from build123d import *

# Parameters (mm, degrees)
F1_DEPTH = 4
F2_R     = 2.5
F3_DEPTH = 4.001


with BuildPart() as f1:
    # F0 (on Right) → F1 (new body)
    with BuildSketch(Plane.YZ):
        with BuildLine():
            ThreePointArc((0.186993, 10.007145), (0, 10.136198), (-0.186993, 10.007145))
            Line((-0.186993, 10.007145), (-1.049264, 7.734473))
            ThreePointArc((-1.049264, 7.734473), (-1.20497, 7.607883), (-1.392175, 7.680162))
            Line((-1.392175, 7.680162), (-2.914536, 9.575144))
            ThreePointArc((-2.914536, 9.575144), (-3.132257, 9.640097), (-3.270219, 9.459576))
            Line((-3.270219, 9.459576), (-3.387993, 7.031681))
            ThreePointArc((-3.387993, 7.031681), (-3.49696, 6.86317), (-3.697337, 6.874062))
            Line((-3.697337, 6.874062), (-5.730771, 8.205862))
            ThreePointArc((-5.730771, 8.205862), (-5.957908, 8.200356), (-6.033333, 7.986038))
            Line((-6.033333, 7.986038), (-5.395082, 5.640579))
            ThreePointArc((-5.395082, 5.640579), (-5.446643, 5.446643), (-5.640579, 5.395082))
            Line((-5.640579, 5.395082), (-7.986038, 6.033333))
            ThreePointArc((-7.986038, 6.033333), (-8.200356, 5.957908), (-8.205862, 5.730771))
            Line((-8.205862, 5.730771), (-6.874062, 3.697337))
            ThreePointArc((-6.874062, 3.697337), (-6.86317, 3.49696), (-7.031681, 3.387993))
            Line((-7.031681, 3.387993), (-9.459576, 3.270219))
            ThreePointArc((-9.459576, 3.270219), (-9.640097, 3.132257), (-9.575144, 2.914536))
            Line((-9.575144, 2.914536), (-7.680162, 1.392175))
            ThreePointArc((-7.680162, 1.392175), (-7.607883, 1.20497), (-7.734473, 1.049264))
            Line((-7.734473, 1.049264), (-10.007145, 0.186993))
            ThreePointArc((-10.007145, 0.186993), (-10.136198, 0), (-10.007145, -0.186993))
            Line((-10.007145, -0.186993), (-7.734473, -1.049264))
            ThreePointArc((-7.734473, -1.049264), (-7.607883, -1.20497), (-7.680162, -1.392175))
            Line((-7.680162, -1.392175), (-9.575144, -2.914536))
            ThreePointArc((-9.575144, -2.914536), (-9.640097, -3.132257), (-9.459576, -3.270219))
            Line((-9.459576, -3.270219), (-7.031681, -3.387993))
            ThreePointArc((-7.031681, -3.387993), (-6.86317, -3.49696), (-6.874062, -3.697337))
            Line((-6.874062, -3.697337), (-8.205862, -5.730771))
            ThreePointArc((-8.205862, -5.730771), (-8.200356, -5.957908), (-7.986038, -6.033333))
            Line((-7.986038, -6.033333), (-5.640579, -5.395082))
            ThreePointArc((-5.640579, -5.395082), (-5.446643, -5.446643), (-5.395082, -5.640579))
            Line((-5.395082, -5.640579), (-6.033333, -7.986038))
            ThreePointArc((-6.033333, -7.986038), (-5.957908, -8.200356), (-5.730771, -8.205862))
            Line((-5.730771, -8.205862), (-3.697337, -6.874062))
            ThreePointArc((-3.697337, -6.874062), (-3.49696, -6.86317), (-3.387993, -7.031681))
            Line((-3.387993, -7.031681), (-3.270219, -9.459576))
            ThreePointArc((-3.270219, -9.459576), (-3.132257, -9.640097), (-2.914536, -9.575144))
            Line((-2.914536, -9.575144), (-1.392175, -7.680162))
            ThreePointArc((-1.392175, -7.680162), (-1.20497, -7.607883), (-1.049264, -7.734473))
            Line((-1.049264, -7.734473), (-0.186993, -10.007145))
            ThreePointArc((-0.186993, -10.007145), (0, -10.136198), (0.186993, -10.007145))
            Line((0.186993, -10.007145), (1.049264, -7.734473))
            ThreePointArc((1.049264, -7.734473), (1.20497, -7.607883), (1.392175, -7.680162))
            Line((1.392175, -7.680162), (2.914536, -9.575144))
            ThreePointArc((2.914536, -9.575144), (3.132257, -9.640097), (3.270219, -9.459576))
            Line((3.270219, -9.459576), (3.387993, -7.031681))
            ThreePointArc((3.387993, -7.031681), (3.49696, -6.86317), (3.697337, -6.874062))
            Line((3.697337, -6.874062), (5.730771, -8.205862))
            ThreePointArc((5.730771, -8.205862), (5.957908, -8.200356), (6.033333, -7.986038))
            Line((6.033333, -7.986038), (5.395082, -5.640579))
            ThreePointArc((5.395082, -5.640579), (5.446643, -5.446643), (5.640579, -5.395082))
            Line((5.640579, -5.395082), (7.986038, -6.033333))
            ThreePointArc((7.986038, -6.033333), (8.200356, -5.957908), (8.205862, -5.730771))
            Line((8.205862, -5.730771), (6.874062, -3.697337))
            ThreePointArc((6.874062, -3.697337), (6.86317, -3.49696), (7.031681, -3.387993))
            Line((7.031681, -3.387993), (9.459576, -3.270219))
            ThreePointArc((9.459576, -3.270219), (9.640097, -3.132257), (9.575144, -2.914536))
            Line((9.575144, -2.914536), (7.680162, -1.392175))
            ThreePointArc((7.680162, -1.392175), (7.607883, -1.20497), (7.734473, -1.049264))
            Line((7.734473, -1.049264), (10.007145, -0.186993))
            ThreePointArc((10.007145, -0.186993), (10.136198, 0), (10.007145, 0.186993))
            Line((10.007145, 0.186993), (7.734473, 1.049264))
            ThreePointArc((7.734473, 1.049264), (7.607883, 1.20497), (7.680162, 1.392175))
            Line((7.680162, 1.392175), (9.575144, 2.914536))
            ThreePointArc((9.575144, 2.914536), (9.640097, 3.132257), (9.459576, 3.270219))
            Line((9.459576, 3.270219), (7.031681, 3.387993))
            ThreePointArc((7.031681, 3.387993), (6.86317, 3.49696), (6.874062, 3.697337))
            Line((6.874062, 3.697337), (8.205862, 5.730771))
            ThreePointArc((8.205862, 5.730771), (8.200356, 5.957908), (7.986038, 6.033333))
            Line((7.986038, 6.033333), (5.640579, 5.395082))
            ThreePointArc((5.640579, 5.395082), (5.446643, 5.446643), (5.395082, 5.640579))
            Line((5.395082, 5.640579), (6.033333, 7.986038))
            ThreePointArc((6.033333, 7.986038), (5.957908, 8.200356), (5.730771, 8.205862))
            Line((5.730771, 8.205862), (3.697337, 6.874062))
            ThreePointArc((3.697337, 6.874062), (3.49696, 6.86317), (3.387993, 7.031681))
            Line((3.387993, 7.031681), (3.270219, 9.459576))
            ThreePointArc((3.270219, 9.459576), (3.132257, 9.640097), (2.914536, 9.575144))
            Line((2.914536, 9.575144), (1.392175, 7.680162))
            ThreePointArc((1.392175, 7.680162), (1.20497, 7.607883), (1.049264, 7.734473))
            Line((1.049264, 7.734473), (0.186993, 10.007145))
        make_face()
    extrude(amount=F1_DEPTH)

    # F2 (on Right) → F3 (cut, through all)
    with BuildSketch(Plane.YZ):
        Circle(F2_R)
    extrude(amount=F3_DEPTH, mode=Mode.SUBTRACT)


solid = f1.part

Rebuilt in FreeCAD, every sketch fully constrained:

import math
import FreeCAD as App
import Part
import Sketcher
from FreeCAD import Vector

doc = App.newDocument("Part")
body = doc.addObject("PartDesign::Body", "Body")

# Sketch on YZ plane
sketch1 = doc.addObject("Sketcher::SketchObject", "Sketch")
body.addObject(sketch1)
sketch1.AttachmentSupport = (doc.YZ_Plane, [""])
sketch1.MapMode = "FlatFace"
sketch1.addGeometry([
    Part.ArcOfCircle(Part.Circle(Vector(0, 9.94, 0), Vector(0, 0, 1), 0.2), math.radians(21), math.radians(159)),  # 0
    Part.LineSegment(Vector(-0.19, 10.01, 0), Vector(-1.05, 7.73, 0)),  # 1
    Part.ArcOfCircle(Part.Circle(Vector(-1.24, 7.81, 0), Vector(0, 0, 1), 0.2), math.radians(-141), math.radians(-21)),  # 2
    Part.LineSegment(Vector(-1.39, 7.68, 0), Vector(-2.91, 9.58, 0)),  # 3
    Part.ArcOfCircle(Part.Circle(Vector(-3.07, 9.45, 0), Vector(0, 0, 1), 0.2), math.radians(39), math.radians(177)),  # 4
    Part.LineSegment(Vector(-3.27, 9.46, 0), Vector(-3.39, 7.03, 0)),  # 5
    Part.ArcOfCircle(Part.Circle(Vector(-3.59, 7.04, 0), Vector(0, 0, 1), 0.2), math.radians(-123), math.radians(-3)),  # 6
    Part.LineSegment(Vector(-3.7, 6.87, 0), Vector(-5.73, 8.21, 0)),  # 7
    Part.ArcOfCircle(Part.Circle(Vector(-5.84, 8.04, 0), Vector(0, 0, 1), 0.2), math.radians(57), math.radians(195)),  # 8
    Part.LineSegment(Vector(-6.03, 7.99, 0), Vector(-5.4, 5.64, 0)),  # 9
    Part.ArcOfCircle(Part.Circle(Vector(-5.59, 5.59, 0), Vector(0, 0, 1), 0.2), math.radians(-105), math.radians(15)),  # 10
    Part.LineSegment(Vector(-5.64, 5.4, 0), Vector(-7.99, 6.03, 0)),  # 11
    Part.ArcOfCircle(Part.Circle(Vector(-8.04, 5.84, 0), Vector(0, 0, 1), 0.2), math.radians(75), math.radians(213)),  # 12
    Part.LineSegment(Vector(-8.21, 5.73, 0), Vector(-6.87, 3.7, 0)),  # 13
    Part.ArcOfCircle(Part.Circle(Vector(-7.04, 3.59, 0), Vector(0, 0, 1), 0.2), math.radians(-87), math.radians(33)),  # 14
    Part.LineSegment(Vector(-7.03, 3.39, 0), Vector(-9.46, 3.27, 0)),  # 15
    Part.ArcOfCircle(Part.Circle(Vector(-9.45, 3.07, 0), Vector(0, 0, 1), 0.2), math.radians(93), math.radians(231)),  # 16
    Part.LineSegment(Vector(-9.58, 2.91, 0), Vector(-7.68, 1.39, 0)),  # 17
    Part.ArcOfCircle(Part.Circle(Vector(-7.81, 1.24, 0), Vector(0, 0, 1), 0.2), math.radians(-69), math.radians(51)),  # 18
    Part.LineSegment(Vector(-7.73, 1.05, 0), Vector(-10.01, 0.19, 0)),  # 19
    Part.ArcOfCircle(Part.Circle(Vector(-9.94, 0, 0), Vector(0, 0, 1), 0.2), math.radians(111), math.radians(249)),  # 20
    Part.LineSegment(Vector(-10.01, -0.19, 0), Vector(-7.73, -1.05, 0)),  # 21
    Part.ArcOfCircle(Part.Circle(Vector(-7.81, -1.24, 0), Vector(0, 0, 1), 0.2), math.radians(-51), math.radians(69)),  # 22
    Part.LineSegment(Vector(-7.68, -1.39, 0), Vector(-9.58, -2.91, 0)),  # 23
    Part.ArcOfCircle(Part.Circle(Vector(-9.45, -3.07, 0), Vector(0, 0, 1), 0.2), math.radians(129), math.radians(267)),  # 24
    Part.LineSegment(Vector(-9.46, -3.27, 0), Vector(-7.03, -3.39, 0)),  # 25
    Part.ArcOfCircle(Part.Circle(Vector(-7.04, -3.59, 0), Vector(0, 0, 1), 0.2), math.radians(-33), math.radians(87)),  # 26
    Part.LineSegment(Vector(-6.87, -3.7, 0), Vector(-8.21, -5.73, 0)),  # 27
    Part.ArcOfCircle(Part.Circle(Vector(-8.04, -5.84, 0), Vector(0, 0, 1), 0.2), math.radians(147), math.radians(285)),  # 28
    Part.LineSegment(Vector(-7.99, -6.03, 0), Vector(-5.64, -5.4, 0)),  # 29
    Part.ArcOfCircle(Part.Circle(Vector(-5.59, -5.59, 0), Vector(0, 0, 1), 0.2), math.radians(-15), math.radians(105)),  # 30
    Part.LineSegment(Vector(-5.4, -5.64, 0), Vector(-6.03, -7.99, 0)),  # 31
    Part.ArcOfCircle(Part.Circle(Vector(-5.84, -8.04, 0), Vector(0, 0, 1), 0.2), math.radians(165), math.radians(303)),  # 32
    Part.LineSegment(Vector(-5.73, -8.21, 0), Vector(-3.7, -6.87, 0)),  # 33
    Part.ArcOfCircle(Part.Circle(Vector(-3.59, -7.04, 0), Vector(0, 0, 1), 0.2), math.radians(3), math.radians(123)),  # 34
    Part.LineSegment(Vector(-3.39, -7.03, 0), Vector(-3.27, -9.46, 0)),  # 35
    Part.ArcOfCircle(Part.Circle(Vector(-3.07, -9.45, 0), Vector(0, 0, 1), 0.2), math.radians(-177), math.radians(-39)),  # 36
    Part.LineSegment(Vector(-2.91, -9.58, 0), Vector(-1.39, -7.68, 0)),  # 37
    Part.ArcOfCircle(Part.Circle(Vector(-1.24, -7.81, 0), Vector(0, 0, 1), 0.2), math.radians(21), math.radians(141)),  # 38
    Part.LineSegment(Vector(-1.05, -7.73, 0), Vector(-0.19, -10.01, 0)),  # 39
    Part.ArcOfCircle(Part.Circle(Vector(0, -9.94, 0), Vector(0, 0, 1), 0.2), math.radians(-159), math.radians(-21)),  # 40
    Part.LineSegment(Vector(0.19, -10.01, 0), Vector(1.05, -7.73, 0)),  # 41
    Part.ArcOfCircle(Part.Circle(Vector(1.24, -7.81, 0), Vector(0, 0, 1), 0.2), math.radians(39), math.radians(159)),  # 42
    Part.LineSegment(Vector(1.39, -7.68, 0), Vector(2.91, -9.58, 0)),  # 43
    Part.ArcOfCircle(Part.Circle(Vector(3.07, -9.45, 0), Vector(0, 0, 1), 0.2), math.radians(-141), math.radians(-3)),  # 44
    Part.LineSegment(Vector(3.27, -9.46, 0), Vector(3.39, -7.03, 0)),  # 45
    Part.ArcOfCircle(Part.Circle(Vector(3.59, -7.04, 0), Vector(0, 0, 1), 0.2), math.radians(57), math.radians(177)),  # 46
    Part.LineSegment(Vector(3.7, -6.87, 0), Vector(5.73, -8.21, 0)),  # 47
    Part.ArcOfCircle(Part.Circle(Vector(5.84, -8.04, 0), Vector(0, 0, 1), 0.2), math.radians(-123), math.radians(15)),  # 48
    Part.LineSegment(Vector(6.03, -7.99, 0), Vector(5.4, -5.64, 0)),  # 49
    Part.ArcOfCircle(Part.Circle(Vector(5.59, -5.59, 0), Vector(0, 0, 1), 0.2), math.radians(75), math.radians(195)),  # 50
    Part.LineSegment(Vector(5.64, -5.4, 0), Vector(7.99, -6.03, 0)),  # 51
    Part.ArcOfCircle(Part.Circle(Vector(8.04, -5.84, 0), Vector(0, 0, 1), 0.2), math.radians(-105), math.radians(33)),  # 52
    Part.LineSegment(Vector(8.21, -5.73, 0), Vector(6.87, -3.7, 0)),  # 53
    Part.ArcOfCircle(Part.Circle(Vector(7.04, -3.59, 0), Vector(0, 0, 1), 0.2), math.radians(93), math.radians(213)),  # 54
    Part.LineSegment(Vector(7.03, -3.39, 0), Vector(9.46, -3.27, 0)),  # 55
    Part.ArcOfCircle(Part.Circle(Vector(9.45, -3.07, 0), Vector(0, 0, 1), 0.2), math.radians(-87), math.radians(51)),  # 56
    Part.LineSegment(Vector(9.58, -2.91, 0), Vector(7.68, -1.39, 0)),  # 57
    Part.ArcOfCircle(Part.Circle(Vector(7.81, -1.24, 0), Vector(0, 0, 1), 0.2), math.radians(111), math.radians(231)),  # 58
    Part.LineSegment(Vector(7.73, -1.05, 0), Vector(10.01, -0.19, 0)),  # 59
    Part.ArcOfCircle(Part.Circle(Vector(9.94, 0, 0), Vector(0, 0, 1), 0.2), math.radians(-69), math.radians(69)),  # 60
    Part.LineSegment(Vector(10.01, 0.19, 0), Vector(7.73, 1.05, 0)),  # 61
    Part.ArcOfCircle(Part.Circle(Vector(7.81, 1.24, 0), Vector(0, 0, 1), 0.2), math.radians(129), math.radians(249)),  # 62
    Part.LineSegment(Vector(7.68, 1.39, 0), Vector(9.58, 2.91, 0)),  # 63
    Part.ArcOfCircle(Part.Circle(Vector(9.45, 3.07, 0), Vector(0, 0, 1), 0.2), math.radians(-51), math.radians(87)),  # 64
    Part.LineSegment(Vector(9.46, 3.27, 0), Vector(7.03, 3.39, 0)),  # 65
    Part.ArcOfCircle(Part.Circle(Vector(7.04, 3.59, 0), Vector(0, 0, 1), 0.2), math.radians(147), math.radians(267)),  # 66
    Part.LineSegment(Vector(6.87, 3.7, 0), Vector(8.21, 5.73, 0)),  # 67
    Part.ArcOfCircle(Part.Circle(Vector(8.04, 5.84, 0), Vector(0, 0, 1), 0.2), math.radians(-33), math.radians(105)),  # 68
    Part.LineSegment(Vector(7.99, 6.03, 0), Vector(5.64, 5.4, 0)),  # 69
    Part.ArcOfCircle(Part.Circle(Vector(5.59, 5.59, 0), Vector(0, 0, 1), 0.2), math.radians(165), math.radians(285)),  # 70
    Part.LineSegment(Vector(5.4, 5.64, 0), Vector(6.03, 7.99, 0)),  # 71
    Part.ArcOfCircle(Part.Circle(Vector(5.84, 8.04, 0), Vector(0, 0, 1), 0.2), math.radians(-15), math.radians(123)),  # 72
    Part.LineSegment(Vector(5.73, 8.21, 0), Vector(3.7, 6.87, 0)),  # 73
    Part.ArcOfCircle(Part.Circle(Vector(3.59, 7.04, 0), Vector(0, 0, 1), 0.2), math.radians(-177), math.radians(-57)),  # 74
    Part.LineSegment(Vector(3.39, 7.03, 0), Vector(3.27, 9.46, 0)),  # 75
    Part.ArcOfCircle(Part.Circle(Vector(3.07, 9.45, 0), Vector(0, 0, 1), 0.2), math.radians(3), math.radians(141)),  # 76
    Part.LineSegment(Vector(2.91, 9.58, 0), Vector(1.39, 7.68, 0)),  # 77
    Part.ArcOfCircle(Part.Circle(Vector(1.24, 7.81, 0), Vector(0, 0, 1), 0.2), math.radians(-159), math.radians(-39)),  # 78
    Part.LineSegment(Vector(1.05, 7.73, 0), Vector(0.19, 10.01, 0)),  # 79
], False)
sketch1.addConstraint([
    Sketcher.Constraint("Tangent", 0, 2, 1, 1),
    Sketcher.Constraint("Coincident", 1, 2, 2, 2),
    Sketcher.Constraint("Tangent", 2, 1, 3, 1),
    Sketcher.Constraint("Tangent", 3, 2, 4, 1),
    Sketcher.Constraint("Tangent", 4, 2, 5, 1),
    Sketcher.Constraint("Tangent", 5, 2, 6, 2),
    Sketcher.Constraint("Tangent", 6, 1, 7, 1),
    Sketcher.Constraint("Tangent", 7, 2, 8, 1),
    Sketcher.Constraint("Tangent", 8, 2, 9, 1),
    Sketcher.Constraint("Tangent", 9, 2, 10, 2),
    Sketcher.Constraint("Tangent", 10, 1, 11, 1),
    Sketcher.Constraint("Tangent", 11, 2, 12, 1),
    Sketcher.Constraint("Tangent", 12, 2, 13, 1),
    Sketcher.Constraint("Tangent", 13, 2, 14, 2),
    Sketcher.Constraint("Tangent", 14, 1, 15, 1),
    Sketcher.Constraint("Tangent", 15, 2, 16, 1),
    Sketcher.Constraint("Tangent", 16, 2, 17, 1),
    Sketcher.Constraint("Tangent", 17, 2, 18, 2),
    Sketcher.Constraint("Coincident", 18, 1, 19, 1),
    Sketcher.Constraint("Tangent", 19, 2, 20, 1),
    Sketcher.Constraint("Tangent", 20, 2, 21, 1),
    Sketcher.Constraint("Coincident", 21, 2, 22, 2),
    Sketcher.Constraint("Tangent", 22, 1, 23, 1),
    Sketcher.Constraint("Tangent", 23, 2, 24, 1),
    Sketcher.Constraint("Tangent", 24, 2, 25, 1),
    Sketcher.Constraint("Tangent", 25, 2, 26, 2),
    Sketcher.Constraint("Tangent", 26, 1, 27, 1),
    Sketcher.Constraint("Tangent", 27, 2, 28, 1),
    Sketcher.Constraint("Tangent", 28, 2, 29, 1),
    Sketcher.Constraint("Tangent", 29, 2, 30, 2),
    Sketcher.Constraint("Tangent", 30, 1, 31, 1),
    Sketcher.Constraint("Tangent", 31, 2, 32, 1),
    Sketcher.Constraint("Tangent", 32, 2, 33, 1),
    Sketcher.Constraint("Tangent", 33, 2, 34, 2),
    Sketcher.Constraint("Tangent", 34, 1, 35, 1),
    Sketcher.Constraint("Tangent", 35, 2, 36, 1),
    Sketcher.Constraint("Tangent", 36, 2, 37, 1),
    Sketcher.Constraint("Tangent", 37, 2, 38, 2),
    Sketcher.Constraint("Coincident", 38, 1, 39, 1),
    Sketcher.Constraint("Tangent", 39, 2, 40, 1),
    Sketcher.Constraint("Tangent", 40, 2, 41, 1),
    Sketcher.Constraint("Coincident", 41, 2, 42, 2),
    Sketcher.Constraint("Tangent", 42, 1, 43, 1),
    Sketcher.Constraint("Tangent", 43, 2, 44, 1),
    Sketcher.Constraint("Tangent", 44, 2, 45, 1),
    Sketcher.Constraint("Tangent", 45, 2, 46, 2),
    Sketcher.Constraint("Tangent", 46, 1, 47, 1),
    Sketcher.Constraint("Tangent", 47, 2, 48, 1),
    Sketcher.Constraint("Tangent", 48, 2, 49, 1),
    Sketcher.Constraint("Tangent", 49, 2, 50, 2),
    Sketcher.Constraint("Tangent", 50, 1, 51, 1),
    Sketcher.Constraint("Tangent", 51, 2, 52, 1),
    Sketcher.Constraint("Tangent", 52, 2, 53, 1),
    Sketcher.Constraint("Tangent", 53, 2, 54, 2),
    Sketcher.Constraint("Tangent", 54, 1, 55, 1),
    Sketcher.Constraint("Tangent", 55, 2, 56, 1),
    Sketcher.Constraint("Tangent", 56, 2, 57, 1),
    Sketcher.Constraint("Tangent", 57, 2, 58, 2),
    Sketcher.Constraint("Coincident", 58, 1, 59, 1),
    Sketcher.Constraint("Tangent", 59, 2, 60, 1),
    Sketcher.Constraint("Tangent", 60, 2, 61, 1),
    Sketcher.Constraint("Coincident", 61, 2, 62, 2),
    Sketcher.Constraint("Tangent", 62, 1, 63, 1),
    Sketcher.Constraint("Tangent", 63, 2, 64, 1),
    Sketcher.Constraint("Tangent", 64, 2, 65, 1),
    Sketcher.Constraint("Tangent", 65, 2, 66, 2),
    Sketcher.Constraint("Tangent", 66, 1, 67, 1),
    Sketcher.Constraint("Tangent", 67, 2, 68, 1),
    Sketcher.Constraint("Tangent", 68, 2, 69, 1),
    Sketcher.Constraint("Tangent", 69, 2, 70, 2),
    Sketcher.Constraint("Tangent", 70, 1, 71, 1),
    Sketcher.Constraint("Tangent", 71, 2, 72, 1),
    Sketcher.Constraint("Tangent", 72, 2, 73, 1),
    Sketcher.Constraint("Tangent", 73, 2, 74, 2),
    Sketcher.Constraint("Tangent", 74, 1, 75, 1),
    Sketcher.Constraint("Tangent", 75, 2, 76, 1),
    Sketcher.Constraint("Tangent", 76, 2, 77, 1),
    Sketcher.Constraint("Tangent", 77, 2, 78, 2),
    Sketcher.Constraint("Coincident", 78, 1, 79, 1),
    Sketcher.Constraint("Tangent", 79, 2, 0, 1),
    Sketcher.Constraint("Equal", 0, 2),
    Sketcher.Constraint("Equal", 2, 4),
    Sketcher.Constraint("Equal", 4, 6),
    Sketcher.Constraint("Equal", 6, 8),
    Sketcher.Constraint("Equal", 8, 10),
    Sketcher.Constraint("Equal", 10, 12),
    Sketcher.Constraint("Equal", 12, 14),
    Sketcher.Constraint("Equal", 14, 16),
    Sketcher.Constraint("Equal", 16, 18),
    Sketcher.Constraint("Equal", 18, 20),
    Sketcher.Constraint("Equal", 20, 22),
    Sketcher.Constraint("Equal", 22, 24),
    Sketcher.Constraint("Equal", 24, 26),
    Sketcher.Constraint("Equal", 26, 28),
    Sketcher.Constraint("Equal", 28, 30),
    Sketcher.Constraint("Equal", 30, 32),
    Sketcher.Constraint("Equal", 32, 34),
    Sketcher.Constraint("Equal", 34, 36),
    Sketcher.Constraint("Equal", 36, 38),
    Sketcher.Constraint("Equal", 38, 40),
    Sketcher.Constraint("Equal", 40, 42),
    Sketcher.Constraint("Equal", 42, 44),
    Sketcher.Constraint("Equal", 44, 46),
    Sketcher.Constraint("Equal", 46, 48),
    Sketcher.Constraint("Equal", 48, 50),
    Sketcher.Constraint("Equal", 50, 52),
    Sketcher.Constraint("Equal", 52, 54),
    Sketcher.Constraint("Equal", 54, 56),
    Sketcher.Constraint("Equal", 56, 58),
    Sketcher.Constraint("Equal", 58, 60),
    Sketcher.Constraint("Equal", 60, 62),
    Sketcher.Constraint("Equal", 62, 64),
    Sketcher.Constraint("Equal", 64, 66),
    Sketcher.Constraint("Equal", 66, 68),
    Sketcher.Constraint("Equal", 68, 70),
    Sketcher.Constraint("Equal", 70, 72),
    Sketcher.Constraint("Equal", 72, 74),
    Sketcher.Constraint("Equal", 74, 76),
    Sketcher.Constraint("Equal", 76, 78),
    Sketcher.Constraint("Symmetric", 0, 3, 40, 3, -1, 1),
    Sketcher.Constraint("Symmetric", 2, 3, 42, 3, -1, 1),
    Sketcher.Constraint("Symmetric", 4, 3, 44, 3, -1, 1),
    Sketcher.Constraint("Symmetric", 6, 3, 46, 3, -1, 1),
    Sketcher.Constraint("Symmetric", 8, 3, 48, 3, -1, 1),
    Sketcher.Constraint("Symmetric", 10, 3, 50, 3, -1, 1),
    Sketcher.Constraint("Symmetric", 12, 3, 52, 3, -1, 1),
    Sketcher.Constraint("Symmetric", 14, 3, 54, 3, -1, 1),
    Sketcher.Constraint("Symmetric", 16, 3, 56, 3, -1, 1),
    Sketcher.Constraint("Symmetric", 18, 3, 58, 3, -1, 1),
    Sketcher.Constraint("Symmetric", 20, 3, 60, 3, -1, 1),
    Sketcher.Constraint("Symmetric", 22, 3, 62, 3, -1, 1),
    Sketcher.Constraint("Symmetric", 24, 3, 64, 3, -1, 1),
    Sketcher.Constraint("Symmetric", 26, 3, 66, 3, -1, 1),
    Sketcher.Constraint("Symmetric", 28, 3, 68, 3, -1, 1),
    Sketcher.Constraint("Symmetric", 30, 3, 70, 3, -1, 1),
    Sketcher.Constraint("Symmetric", 32, 3, 72, 3, -1, 1),
    Sketcher.Constraint("Symmetric", 34, 3, 74, 3, -1, 1),
    Sketcher.Constraint("Symmetric", 36, 3, 76, 3, -1, 1),
    Sketcher.Constraint("Symmetric", 38, 3, 78, 3, -1, 1),
    Sketcher.Constraint("Symmetric", 38, 3, 42, 3, -2),
    Sketcher.Constraint("Symmetric", 36, 3, 44, 3, -2),
    Sketcher.Constraint("Symmetric", 34, 3, 46, 3, -2),
    Sketcher.Constraint("Symmetric", 32, 3, 48, 3, -2),
    Sketcher.Constraint("Symmetric", 30, 3, 50, 3, -2),
    Sketcher.Constraint("Symmetric", 28, 3, 52, 3, -2),
    Sketcher.Constraint("Symmetric", 26, 3, 54, 3, -2),
    Sketcher.Constraint("Symmetric", 24, 3, 56, 3, -2),
    Sketcher.Constraint("Symmetric", 22, 3, 58, 3, -2),
    Sketcher.Constraint("PointOnObject", 0, 3, -2),
    Sketcher.Constraint("PointOnObject", 20, 3, -1),
    Sketcher.Constraint("Perpendicular", 1, 21),
    Sketcher.Constraint("Perpendicular", 3, 23),
    Sketcher.Constraint("Perpendicular", 5, 25),
    Sketcher.Constraint("Perpendicular", 7, 27),
    Sketcher.Constraint("Perpendicular", 9, 29),
    Sketcher.Constraint("Horizontal", 38, 1, 41, 2),
    Sketcher.Constraint("Horizontal", 21, 2, 58, 1),
    Sketcher.Constraint("Horizontal", 18, 1, 61, 2),
    Sketcher.Constraint("Horizontal", 1, 2, 78, 1),
    Sketcher.Constraint("Vertical", 18, 1, 21, 2),
    Sketcher.Constraint("Vertical", 1, 2, 38, 1),
    Sketcher.Constraint("Equal", 1, 3),
    Sketcher.Constraint("Equal", 3, 5),
    Sketcher.Constraint("Equal", 5, 7),
    Sketcher.Constraint("Equal", 7, 9),
    Sketcher.Constraint("Equal", 9, 11),
    Sketcher.Constraint("Equal", 11, 13),
    Sketcher.Constraint("Equal", 13, 15),
    Sketcher.Constraint("Equal", 15, 17),
    Sketcher.Constraint("Equal", 17, 19),
    Sketcher.Constraint("Radius", 0, 0.199999),
    Sketcher.Constraint("DistanceY", -1, 1, 0, 3, 9.936199),
    Sketcher.Constraint("DistanceX", 20, 3, -1, 1, 9.936199),
    Sketcher.Constraint("Distance", 1, 2.430751),
    Sketcher.Constraint("DistanceY", -1, 1, 2, 3, 7.805421),
    Sketcher.Constraint("DistanceY", -1, 1, 6, 3, 7.041371),
    Sketcher.Constraint("DistanceX", 8, 3, -1, 1, 5.840351),
    Sketcher.Constraint("DistanceX", 4, 2, -1, 1, 3.270219),
    Sketcher.Constraint("DistanceY", -1, 1, 5, 2, 7.031681),
])
pad1 = doc.addObject("PartDesign::Pad", "Pad")
body.addObject(pad1)
pad1.Profile = sketch1
pad1.Length = 4

# Sketch on YZ plane
sketch2 = doc.addObject("Sketcher::SketchObject", "Sketch001")
body.addObject(sketch2)
sketch2.AttachmentSupport = (doc.YZ_Plane, [""])
sketch2.MapMode = "FlatFace"
sketch2.addGeometry(Part.Circle(Vector(0, 0, 0), Vector(0, 0, 1), 2.5), False)
sketch2.addConstraint([
    Sketcher.Constraint("Coincident", 0, 3, -1, 1),
    Sketcher.Constraint("Diameter", 0, 5.0),
])
pocket1 = doc.addObject("PartDesign::Pocket", "Pocket")
body.addObject(pocket1)
pocket1.Profile = sketch2
pocket1.Type = "ThroughAll"
pocket1.Reversed = True

doc.recompute()
